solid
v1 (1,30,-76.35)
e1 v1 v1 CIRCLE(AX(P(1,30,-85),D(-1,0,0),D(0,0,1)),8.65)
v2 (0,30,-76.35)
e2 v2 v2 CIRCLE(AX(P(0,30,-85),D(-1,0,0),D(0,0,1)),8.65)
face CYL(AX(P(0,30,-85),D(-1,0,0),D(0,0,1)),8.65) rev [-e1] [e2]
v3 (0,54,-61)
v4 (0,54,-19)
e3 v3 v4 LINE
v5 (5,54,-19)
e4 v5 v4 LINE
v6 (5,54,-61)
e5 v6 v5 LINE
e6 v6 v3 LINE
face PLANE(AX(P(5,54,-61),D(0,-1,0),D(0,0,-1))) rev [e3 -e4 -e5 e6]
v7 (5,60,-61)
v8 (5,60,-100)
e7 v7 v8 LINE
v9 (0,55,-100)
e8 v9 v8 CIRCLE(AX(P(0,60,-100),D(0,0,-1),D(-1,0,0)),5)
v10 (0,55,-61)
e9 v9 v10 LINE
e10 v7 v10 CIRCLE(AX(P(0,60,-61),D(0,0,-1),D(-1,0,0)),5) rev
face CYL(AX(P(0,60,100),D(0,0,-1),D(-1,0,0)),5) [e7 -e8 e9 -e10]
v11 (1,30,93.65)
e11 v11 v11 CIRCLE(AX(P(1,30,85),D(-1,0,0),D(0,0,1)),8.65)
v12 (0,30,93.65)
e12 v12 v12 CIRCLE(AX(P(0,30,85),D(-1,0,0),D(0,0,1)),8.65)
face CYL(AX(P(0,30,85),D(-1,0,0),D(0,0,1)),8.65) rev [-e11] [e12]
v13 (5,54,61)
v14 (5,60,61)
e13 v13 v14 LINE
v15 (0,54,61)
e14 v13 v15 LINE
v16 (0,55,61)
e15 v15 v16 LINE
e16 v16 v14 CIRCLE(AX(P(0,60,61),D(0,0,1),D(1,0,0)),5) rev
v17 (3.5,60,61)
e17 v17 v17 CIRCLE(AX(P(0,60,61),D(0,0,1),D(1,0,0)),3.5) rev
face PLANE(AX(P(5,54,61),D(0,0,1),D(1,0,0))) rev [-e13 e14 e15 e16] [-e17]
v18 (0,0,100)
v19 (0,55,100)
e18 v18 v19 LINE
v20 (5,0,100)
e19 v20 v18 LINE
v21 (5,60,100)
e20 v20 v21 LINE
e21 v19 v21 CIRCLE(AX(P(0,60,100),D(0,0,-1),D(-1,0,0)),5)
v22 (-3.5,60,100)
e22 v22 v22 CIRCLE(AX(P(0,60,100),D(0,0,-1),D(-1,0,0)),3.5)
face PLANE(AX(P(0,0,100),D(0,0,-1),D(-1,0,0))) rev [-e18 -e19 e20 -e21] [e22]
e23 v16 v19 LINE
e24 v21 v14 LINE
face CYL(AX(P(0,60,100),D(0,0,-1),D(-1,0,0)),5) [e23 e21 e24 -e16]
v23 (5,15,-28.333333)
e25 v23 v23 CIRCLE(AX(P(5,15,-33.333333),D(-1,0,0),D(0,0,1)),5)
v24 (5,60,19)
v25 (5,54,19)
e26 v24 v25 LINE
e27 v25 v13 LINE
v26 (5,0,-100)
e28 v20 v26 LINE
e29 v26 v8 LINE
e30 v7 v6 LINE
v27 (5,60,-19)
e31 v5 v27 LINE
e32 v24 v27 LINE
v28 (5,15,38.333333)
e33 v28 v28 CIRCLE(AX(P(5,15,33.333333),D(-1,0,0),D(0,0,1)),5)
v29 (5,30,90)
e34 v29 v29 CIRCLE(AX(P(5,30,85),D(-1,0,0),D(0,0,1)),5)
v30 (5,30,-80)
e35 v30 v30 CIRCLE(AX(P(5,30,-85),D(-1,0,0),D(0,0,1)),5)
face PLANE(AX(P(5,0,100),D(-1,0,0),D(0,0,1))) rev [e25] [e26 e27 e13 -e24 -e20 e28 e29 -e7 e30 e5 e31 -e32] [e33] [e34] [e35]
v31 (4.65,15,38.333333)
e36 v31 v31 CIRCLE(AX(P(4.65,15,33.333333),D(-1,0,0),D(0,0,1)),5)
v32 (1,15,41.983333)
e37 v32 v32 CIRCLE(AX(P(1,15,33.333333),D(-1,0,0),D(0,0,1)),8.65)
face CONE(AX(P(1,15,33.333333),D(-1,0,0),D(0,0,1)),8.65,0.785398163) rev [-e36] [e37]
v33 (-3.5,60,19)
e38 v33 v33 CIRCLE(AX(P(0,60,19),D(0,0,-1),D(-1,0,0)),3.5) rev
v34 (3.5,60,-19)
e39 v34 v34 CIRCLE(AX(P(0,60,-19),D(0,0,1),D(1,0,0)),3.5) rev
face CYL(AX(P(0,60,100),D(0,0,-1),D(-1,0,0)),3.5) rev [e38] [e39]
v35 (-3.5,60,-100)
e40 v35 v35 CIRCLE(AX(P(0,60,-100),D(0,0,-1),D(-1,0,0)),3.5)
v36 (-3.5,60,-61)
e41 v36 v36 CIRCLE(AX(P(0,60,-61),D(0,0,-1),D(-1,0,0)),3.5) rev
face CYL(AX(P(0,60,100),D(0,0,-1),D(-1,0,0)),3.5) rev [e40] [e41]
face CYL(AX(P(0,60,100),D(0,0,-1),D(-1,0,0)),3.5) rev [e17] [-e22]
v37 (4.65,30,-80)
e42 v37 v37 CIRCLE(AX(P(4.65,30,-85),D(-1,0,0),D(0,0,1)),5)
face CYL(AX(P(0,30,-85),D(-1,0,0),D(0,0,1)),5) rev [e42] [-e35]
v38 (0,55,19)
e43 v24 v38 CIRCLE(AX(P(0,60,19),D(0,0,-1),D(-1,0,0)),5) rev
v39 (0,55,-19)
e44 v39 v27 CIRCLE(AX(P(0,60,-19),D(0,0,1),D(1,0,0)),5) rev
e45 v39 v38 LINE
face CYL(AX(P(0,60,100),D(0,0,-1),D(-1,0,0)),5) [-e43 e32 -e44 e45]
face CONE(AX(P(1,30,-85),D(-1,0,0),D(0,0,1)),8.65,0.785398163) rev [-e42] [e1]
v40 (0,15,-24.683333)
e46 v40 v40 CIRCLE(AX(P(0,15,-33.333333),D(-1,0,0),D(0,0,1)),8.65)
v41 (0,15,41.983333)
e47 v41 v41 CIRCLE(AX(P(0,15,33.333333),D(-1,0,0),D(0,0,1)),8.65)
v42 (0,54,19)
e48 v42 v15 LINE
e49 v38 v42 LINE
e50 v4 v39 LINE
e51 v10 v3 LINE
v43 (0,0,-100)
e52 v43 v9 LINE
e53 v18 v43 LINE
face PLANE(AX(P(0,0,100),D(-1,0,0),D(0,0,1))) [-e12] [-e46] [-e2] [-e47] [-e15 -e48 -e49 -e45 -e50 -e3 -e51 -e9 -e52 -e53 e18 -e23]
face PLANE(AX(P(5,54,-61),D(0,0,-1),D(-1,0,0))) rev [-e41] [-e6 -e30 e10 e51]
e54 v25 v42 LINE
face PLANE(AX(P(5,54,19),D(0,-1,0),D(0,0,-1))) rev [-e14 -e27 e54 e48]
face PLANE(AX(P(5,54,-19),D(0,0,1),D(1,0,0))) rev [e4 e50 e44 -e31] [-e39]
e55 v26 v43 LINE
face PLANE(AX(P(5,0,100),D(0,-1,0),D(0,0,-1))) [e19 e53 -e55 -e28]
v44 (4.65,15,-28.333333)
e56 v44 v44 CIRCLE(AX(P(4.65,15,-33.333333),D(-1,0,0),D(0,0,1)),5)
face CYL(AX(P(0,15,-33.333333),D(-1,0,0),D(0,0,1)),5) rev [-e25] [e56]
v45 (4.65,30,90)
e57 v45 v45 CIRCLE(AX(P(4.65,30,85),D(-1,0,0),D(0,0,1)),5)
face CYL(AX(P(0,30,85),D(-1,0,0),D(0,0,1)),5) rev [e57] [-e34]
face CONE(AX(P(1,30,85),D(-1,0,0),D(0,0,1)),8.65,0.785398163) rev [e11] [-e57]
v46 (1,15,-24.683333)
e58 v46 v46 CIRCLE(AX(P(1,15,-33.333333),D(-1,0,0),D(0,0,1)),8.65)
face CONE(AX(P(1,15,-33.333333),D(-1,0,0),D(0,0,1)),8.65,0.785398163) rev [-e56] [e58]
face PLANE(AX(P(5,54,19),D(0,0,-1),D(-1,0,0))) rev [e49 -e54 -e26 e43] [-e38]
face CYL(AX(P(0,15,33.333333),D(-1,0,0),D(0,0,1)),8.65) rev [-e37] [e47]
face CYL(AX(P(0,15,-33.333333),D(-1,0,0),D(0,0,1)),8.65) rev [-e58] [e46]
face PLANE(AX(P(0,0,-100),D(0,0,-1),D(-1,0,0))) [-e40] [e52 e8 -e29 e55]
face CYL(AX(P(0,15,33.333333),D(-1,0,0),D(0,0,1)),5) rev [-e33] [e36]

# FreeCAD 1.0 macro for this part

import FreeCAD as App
import Part
import Sketcher

V = App.Vector
Q = App.Units.Quantity

doc = App.newDocument("Part")
body = doc.addObject("PartDesign::Body", "Body")

sketch1 = body.newObject("Sketcher::SketchObject", "Sketch")
sketch1.AttachmentSupport = (doc.getObject("XY_Plane"), [""])
sketch1.MapMode = "FlatFace"
sketch1.addGeometry([
    Part.LineSegment(V(0, 60, 0), V(0, 0, 0)),
    Part.LineSegment(V(0, 0, 0), V(5, 0, 0)),
    Part.LineSegment(V(5, 0, 0), V(5, 60, 0)),
    Part.LineSegment(V(5, 60, 0), V(0, 60, 0)),
], False)
sketch1.addConstraint([
    Sketcher.Constraint("Coincident", 0, 2, 1, 1),
    Sketcher.Constraint("Coincident", 1, 2, 2, 1),
    Sketcher.Constraint("Coincident", 2, 2, 3, 1),
    Sketcher.Constraint("Coincident", 3, 2, 0, 1),
    Sketcher.Constraint("Vertical", 0),
    Sketcher.Constraint("Horizontal", 1),
    Sketcher.Constraint("Vertical", 2),
    Sketcher.Constraint("Horizontal", 3),
    Sketcher.Constraint("Coincident", 0, 2, -1, 1),
    Sketcher.Constraint("DistanceX", 1, 1, 1, 2, 5.0),
    Sketcher.Constraint("DistanceY", 0, 2, 0, 1, 60.0),
])
pad1 = body.newObject("PartDesign::Pad", "Pad")
pad1.Profile = sketch1
pad1.Length = 200
pad1.Midplane = True

sketch2 = body.newObject("Sketcher::SketchObject", "Sketch001")
sketch2.AttachmentSupport = (doc.getObject("XY_Plane"), [""])
sketch2.MapMode = "FlatFace"
sketch2.AttachmentOffset = App.Placement(V(0, 0, -100), App.Rotation())
sketch2.addGeometry(Part.Circle(V(0, 60, 0), V(0, 0, 1), 5), False)
sketch2.addConstraint([
    Sketcher.Constraint("PointOnObject", 0, 3, -2),
    Sketcher.Constraint("Diameter", 0, 10.0),
    Sketcher.Constraint("DistanceY", -1, 1, 0, 3, 60.0),
])

sketch3 = body.newObject("Sketcher::SketchObject", "Sketch002")
sketch3.AttachmentSupport = (doc.getObject("XZ_Plane"), [""])
sketch3.MapMode = "FlatFace"
sketch3.AttachmentOffset = App.Placement(V(0, 0, -60), App.Rotation())
sketch3.addGeometry(Part.LineSegment(V(0, 100, 0), V(0, -100, 0)), False)
sketch3.addConstraint([
    Sketcher.Constraint("Vertical", 0),
    Sketcher.Constraint("Symmetric", 0, 1, 0, 2, -1, 1),
    Sketcher.Constraint("DistanceY", 0, 2, 0, 1, 200.0),
])
doc.recompute()

additivepipe = body.newObject("PartDesign::AdditivePipe", "AdditivePipe")
additivepipe.Profile = sketch2
additivepipe.Spine = (sketch3, ["Edge1"])

sketch4 = body.newObject("Sketcher::SketchObject", "Sketch003")
sketch4.AttachmentSupport = (doc.getObject("XY_Plane"), [""])
sketch4.MapMode = "FlatFace"
sketch4.AttachmentOffset = App.Placement(V(0, 0, -100), App.Rotation())
sketch4.addGeometry(Part.Circle(V(0, 60, 0), V(0, 0, 1), 3.5), False)
sketch4.addConstraint([
    Sketcher.Constraint("PointOnObject", 0, 3, -2),
    Sketcher.Constraint("Diameter", 0, 7.0),
    Sketcher.Constraint("DistanceY", -1, 1, 0, 3, 60.0),
])
pocket1 = body.newObject("PartDesign::Pocket", "Pocket")
pocket1.Profile = sketch4
pocket1.Type = "ThroughAll"
pocket1.Reversed = True

sketch5 = body.newObject("Sketcher::SketchObject", "Sketch004")
sketch5.AttachmentSupport = (doc.getObject("XZ_Plane"), [""])
sketch5.MapMode = "FlatFace"
sketch5.AttachmentOffset = App.Placement(V(0, 0, -30), App.Rotation())
sketch5.addGeometry([
    Part.LineSegment(V(5, -85, 0), V(0, -85, 0)),
    Part.LineSegment(V(0, -85, 0), V(0, -76.35, 0)),
    Part.LineSegment(V(0, -76.35, 0), V(1, -76.35, 0)),
    Part.LineSegment(V(1, -76.35, 0), V(4.65, -80, 0)),
    Part.LineSegment(V(4.65, -80, 0), V(5, -80, 0)),
    Part.LineSegment(V(5, -80, 0), V(5, -85, 0)),
], False)
sketch5.addGeometry(Part.LineSegment(V(0, -85, 0), V(5, -85, 0)), True)
sketch5.addConstraint([
    Sketcher.Constraint("Coincident", 0, 2, 1, 1),
    Sketcher.Constraint("Coincident", 1, 2, 2, 1),
    Sketcher.Constraint("Coincident", 2, 2, 3, 1),
    Sketcher.Constraint("Coincident", 3, 2, 4, 1),
    Sketcher.Constraint("Coincident", 4, 2, 5, 1),
    Sketcher.Constraint("Coincident", 5, 2, 0, 1),
    Sketcher.Constraint("Horizontal", 0),
    Sketcher.Constraint("Vertical", 1),
    Sketcher.Constraint("Horizontal", 2),
    Sketcher.Constraint("Horizontal", 4),
    Sketcher.Constraint("Vertical", 5),
    Sketcher.Constraint("Horizontal", 6),
    Sketcher.Constraint("Coincident", 6, 1, 0, 2),
    Sketcher.Constraint("PointOnObject", 0, 2, -2),
    Sketcher.Constraint("Vertical", 4, 2, 6, 2),
    Sketcher.Constraint("Equal", 6, 5),
    Sketcher.Constraint("DistanceX", 0, 2, 0, 1, 5.0),
    Sketcher.Constraint("DistanceX", 2, 1, 2, 2, 1.0),
    Sketcher.Constraint("Angle", 3, Q("-45 deg")),
    Sketcher.Constraint("DistanceY", 0, 2, -1, 1, 85.0),
    Sketcher.Constraint("DistanceX", 4, 1, 4, 2, 0.35),
])
groove = body.newObject("PartDesign::Groove", "Groove")
groove.Profile = sketch5
groove.ReferenceAxis = (sketch5, ["Axis0"])
groove.Angle = 360
doc.recompute()

datumline = body.newObject("PartDesign::Line", "DatumLine")
datumline.Placement = App.Placement(V(0, 0, 0), App.Rotation(V(0, 0, 1), V(0, -0.278810195, 0.960346227)))
linearpattern = body.newObject("PartDesign::LinearPattern", "LinearPattern")
linearpattern.Originals = [groove]
linearpattern.Direction = (datumline, [""])
linearpattern.Mode = "offset"
linearpattern.Offset = 53.800041
linearpattern.Occurrences = 2
body.Tip = linearpattern
doc.recompute()

mirrored = body.newObject("PartDesign::Mirrored", "Mirrored")
mirrored.Originals = [groove]
mirrored.MirrorPlane = (doc.getObject("XY_Plane"), [""])
body.Tip = mirrored

sketch6 = body.newObject("Sketcher::SketchObject", "Sketch005")
sketch6.AttachmentSupport = (doc.getObject("XZ_Plane"), [""])
sketch6.MapMode = "FlatFace"
sketch6.AttachmentOffset = App.Placement(V(0, 0, -15), App.Rotation())
sketch6.addGeometry([
    Part.LineSegment(V(0, 33.33, 0), V(5, 33.33, 0)),
    Part.LineSegment(V(5, 33.33, 0), V(5, 28.33, 0)),
    Part.LineSegment(V(5, 28.33, 0), V(4.65, 28.33, 0)),
    Part.LineSegment(V(4.65, 28.33, 0), V(1, 24.68, 0)),
    Part.LineSegment(V(1, 24.68, 0), V(0, 24.68, 0)),
    Part.LineSegment(V(0, 24.68, 0), V(0, 33.33, 0)),
], False)
sketch6.addGeometry(Part.LineSegment(V(5, 33.33, 0), V(0, 33.33, 0)), True)
sketch6.addConstraint([
    Sketcher.Constraint("Coincident", 0, 2, 1, 1),
    Sketcher.Constraint("Coincident", 1, 2, 2, 1),
    Sketcher.Constraint("Coincident", 2, 2, 3, 1),
    Sketcher.Constraint("Coincident", 3, 2, 4, 1),
    Sketcher.Constraint("Coincident", 4, 2, 5, 1),
    Sketcher.Constraint("Coincident", 5, 2, 0, 1),
    Sketcher.Constraint("Horizontal", 0),
    Sketcher.Constraint("Vertical", 1),
    Sketcher.Constraint("Horizontal", 2),
    Sketcher.Constraint("Horizontal", 4),
    Sketcher.Constraint("Vertical", 5),
    Sketcher.Constraint("Horizontal", 6),
    Sketcher.Constraint("Coincident", 6, 1, 0, 2),
    Sketcher.Constraint("PointOnObject", 4, 2, -2),
    Sketcher.Constraint("PointOnObject", 6, 2, -2),
    Sketcher.Constraint("Equal", 6, 1),
    Sketcher.Constraint("DistanceX", 0, 1, 0, 2, 5.0),
    Sketcher.Constraint("DistanceX", 4, 2, 4, 1, 1.0),
    Sketcher.Constraint("Angle", 3, Q("-135 deg")),
    Sketcher.Constraint("DistanceX", 2, 2, 2, 1, 0.35),
    Sketcher.Constraint("DistanceY", -1, 1, 0, 2, 33.333333),
])
groove2 = body.newObject("PartDesign::Groove", "Groove001")
groove2.Profile = sketch6
groove2.ReferenceAxis = (sketch6, ["Axis0"])
groove2.Angle = 360

sketch7 = body.newObject("Sketcher::SketchObject", "Sketch006")
sketch7.AttachmentSupport = (doc.getObject("YZ_Plane"), [""])
sketch7.MapMode = "FlatFace"
sketch7.addGeometry([
    Part.LineSegment(V(65, -61, 0), V(54, -61, 0)),
    Part.LineSegment(V(54, -61, 0), V(54, -19, 0)),
    Part.LineSegment(V(54, -19, 0), V(65, -19, 0)),
    Part.LineSegment(V(65, -19, 0), V(65, -61, 0)),
    Part.LineSegment(V(65, 19, 0), V(54, 19, 0)),
    Part.LineSegment(V(54, 19, 0), V(54, 61, 0)),
    Part.LineSegment(V(54, 61, 0), V(65, 61, 0)),
    Part.LineSegment(V(65, 61, 0), V(65, 19, 0)),
], False)
sketch7.addConstraint([
    Sketcher.Constraint("Coincident", 0, 2, 1, 1),
    Sketcher.Constraint("Coincident", 1, 2, 2, 1),
    Sketcher.Constraint("Coincident", 2, 2, 3, 1),
    Sketcher.Constraint("Coincident", 3, 2, 0, 1),
    Sketcher.Constraint("Coincident", 4, 2, 5, 1),
    Sketcher.Constraint("Coincident", 5, 2, 6, 1),
    Sketcher.Constraint("Coincident", 6, 2, 7, 1),
    Sketcher.Constraint("Coincident", 7, 2, 4, 1),
    Sketcher.Constraint("Horizontal", 0),
    Sketcher.Constraint("Vertical", 1),
    Sketcher.Constraint("Horizontal", 2),
    Sketcher.Constraint("Vertical", 3),
    Sketcher.Constraint("Horizontal", 4),
    Sketcher.Constraint("Vertical", 5),
    Sketcher.Constraint("Horizontal", 6),
    Sketcher.Constraint("Vertical", 7),
    Sketcher.Constraint("Symmetric", 1, 2, 4, 2, -1),
    Sketcher.Constraint("Symmetric", 3, 2, 6, 2, -1),
    Sketcher.Constraint("DistanceX", 0, 2, 0, 1, 11.0),
    Sketcher.Constraint("DistanceY", 1, 1, 1, 2, 42.0),
    Sketcher.Constraint("DistanceX", -1, 1, 0, 2, 54.0),
    Sketcher.Constraint("DistanceY", 0, 2, -1, 1, 61.0),
])
pocket2 = body.newObject("PartDesign::Pocket", "Pocket001")
pocket2.Profile = sketch7
pocket2.Type = "ThroughAll"
pocket2.Midplane = True

doc.recompute()
